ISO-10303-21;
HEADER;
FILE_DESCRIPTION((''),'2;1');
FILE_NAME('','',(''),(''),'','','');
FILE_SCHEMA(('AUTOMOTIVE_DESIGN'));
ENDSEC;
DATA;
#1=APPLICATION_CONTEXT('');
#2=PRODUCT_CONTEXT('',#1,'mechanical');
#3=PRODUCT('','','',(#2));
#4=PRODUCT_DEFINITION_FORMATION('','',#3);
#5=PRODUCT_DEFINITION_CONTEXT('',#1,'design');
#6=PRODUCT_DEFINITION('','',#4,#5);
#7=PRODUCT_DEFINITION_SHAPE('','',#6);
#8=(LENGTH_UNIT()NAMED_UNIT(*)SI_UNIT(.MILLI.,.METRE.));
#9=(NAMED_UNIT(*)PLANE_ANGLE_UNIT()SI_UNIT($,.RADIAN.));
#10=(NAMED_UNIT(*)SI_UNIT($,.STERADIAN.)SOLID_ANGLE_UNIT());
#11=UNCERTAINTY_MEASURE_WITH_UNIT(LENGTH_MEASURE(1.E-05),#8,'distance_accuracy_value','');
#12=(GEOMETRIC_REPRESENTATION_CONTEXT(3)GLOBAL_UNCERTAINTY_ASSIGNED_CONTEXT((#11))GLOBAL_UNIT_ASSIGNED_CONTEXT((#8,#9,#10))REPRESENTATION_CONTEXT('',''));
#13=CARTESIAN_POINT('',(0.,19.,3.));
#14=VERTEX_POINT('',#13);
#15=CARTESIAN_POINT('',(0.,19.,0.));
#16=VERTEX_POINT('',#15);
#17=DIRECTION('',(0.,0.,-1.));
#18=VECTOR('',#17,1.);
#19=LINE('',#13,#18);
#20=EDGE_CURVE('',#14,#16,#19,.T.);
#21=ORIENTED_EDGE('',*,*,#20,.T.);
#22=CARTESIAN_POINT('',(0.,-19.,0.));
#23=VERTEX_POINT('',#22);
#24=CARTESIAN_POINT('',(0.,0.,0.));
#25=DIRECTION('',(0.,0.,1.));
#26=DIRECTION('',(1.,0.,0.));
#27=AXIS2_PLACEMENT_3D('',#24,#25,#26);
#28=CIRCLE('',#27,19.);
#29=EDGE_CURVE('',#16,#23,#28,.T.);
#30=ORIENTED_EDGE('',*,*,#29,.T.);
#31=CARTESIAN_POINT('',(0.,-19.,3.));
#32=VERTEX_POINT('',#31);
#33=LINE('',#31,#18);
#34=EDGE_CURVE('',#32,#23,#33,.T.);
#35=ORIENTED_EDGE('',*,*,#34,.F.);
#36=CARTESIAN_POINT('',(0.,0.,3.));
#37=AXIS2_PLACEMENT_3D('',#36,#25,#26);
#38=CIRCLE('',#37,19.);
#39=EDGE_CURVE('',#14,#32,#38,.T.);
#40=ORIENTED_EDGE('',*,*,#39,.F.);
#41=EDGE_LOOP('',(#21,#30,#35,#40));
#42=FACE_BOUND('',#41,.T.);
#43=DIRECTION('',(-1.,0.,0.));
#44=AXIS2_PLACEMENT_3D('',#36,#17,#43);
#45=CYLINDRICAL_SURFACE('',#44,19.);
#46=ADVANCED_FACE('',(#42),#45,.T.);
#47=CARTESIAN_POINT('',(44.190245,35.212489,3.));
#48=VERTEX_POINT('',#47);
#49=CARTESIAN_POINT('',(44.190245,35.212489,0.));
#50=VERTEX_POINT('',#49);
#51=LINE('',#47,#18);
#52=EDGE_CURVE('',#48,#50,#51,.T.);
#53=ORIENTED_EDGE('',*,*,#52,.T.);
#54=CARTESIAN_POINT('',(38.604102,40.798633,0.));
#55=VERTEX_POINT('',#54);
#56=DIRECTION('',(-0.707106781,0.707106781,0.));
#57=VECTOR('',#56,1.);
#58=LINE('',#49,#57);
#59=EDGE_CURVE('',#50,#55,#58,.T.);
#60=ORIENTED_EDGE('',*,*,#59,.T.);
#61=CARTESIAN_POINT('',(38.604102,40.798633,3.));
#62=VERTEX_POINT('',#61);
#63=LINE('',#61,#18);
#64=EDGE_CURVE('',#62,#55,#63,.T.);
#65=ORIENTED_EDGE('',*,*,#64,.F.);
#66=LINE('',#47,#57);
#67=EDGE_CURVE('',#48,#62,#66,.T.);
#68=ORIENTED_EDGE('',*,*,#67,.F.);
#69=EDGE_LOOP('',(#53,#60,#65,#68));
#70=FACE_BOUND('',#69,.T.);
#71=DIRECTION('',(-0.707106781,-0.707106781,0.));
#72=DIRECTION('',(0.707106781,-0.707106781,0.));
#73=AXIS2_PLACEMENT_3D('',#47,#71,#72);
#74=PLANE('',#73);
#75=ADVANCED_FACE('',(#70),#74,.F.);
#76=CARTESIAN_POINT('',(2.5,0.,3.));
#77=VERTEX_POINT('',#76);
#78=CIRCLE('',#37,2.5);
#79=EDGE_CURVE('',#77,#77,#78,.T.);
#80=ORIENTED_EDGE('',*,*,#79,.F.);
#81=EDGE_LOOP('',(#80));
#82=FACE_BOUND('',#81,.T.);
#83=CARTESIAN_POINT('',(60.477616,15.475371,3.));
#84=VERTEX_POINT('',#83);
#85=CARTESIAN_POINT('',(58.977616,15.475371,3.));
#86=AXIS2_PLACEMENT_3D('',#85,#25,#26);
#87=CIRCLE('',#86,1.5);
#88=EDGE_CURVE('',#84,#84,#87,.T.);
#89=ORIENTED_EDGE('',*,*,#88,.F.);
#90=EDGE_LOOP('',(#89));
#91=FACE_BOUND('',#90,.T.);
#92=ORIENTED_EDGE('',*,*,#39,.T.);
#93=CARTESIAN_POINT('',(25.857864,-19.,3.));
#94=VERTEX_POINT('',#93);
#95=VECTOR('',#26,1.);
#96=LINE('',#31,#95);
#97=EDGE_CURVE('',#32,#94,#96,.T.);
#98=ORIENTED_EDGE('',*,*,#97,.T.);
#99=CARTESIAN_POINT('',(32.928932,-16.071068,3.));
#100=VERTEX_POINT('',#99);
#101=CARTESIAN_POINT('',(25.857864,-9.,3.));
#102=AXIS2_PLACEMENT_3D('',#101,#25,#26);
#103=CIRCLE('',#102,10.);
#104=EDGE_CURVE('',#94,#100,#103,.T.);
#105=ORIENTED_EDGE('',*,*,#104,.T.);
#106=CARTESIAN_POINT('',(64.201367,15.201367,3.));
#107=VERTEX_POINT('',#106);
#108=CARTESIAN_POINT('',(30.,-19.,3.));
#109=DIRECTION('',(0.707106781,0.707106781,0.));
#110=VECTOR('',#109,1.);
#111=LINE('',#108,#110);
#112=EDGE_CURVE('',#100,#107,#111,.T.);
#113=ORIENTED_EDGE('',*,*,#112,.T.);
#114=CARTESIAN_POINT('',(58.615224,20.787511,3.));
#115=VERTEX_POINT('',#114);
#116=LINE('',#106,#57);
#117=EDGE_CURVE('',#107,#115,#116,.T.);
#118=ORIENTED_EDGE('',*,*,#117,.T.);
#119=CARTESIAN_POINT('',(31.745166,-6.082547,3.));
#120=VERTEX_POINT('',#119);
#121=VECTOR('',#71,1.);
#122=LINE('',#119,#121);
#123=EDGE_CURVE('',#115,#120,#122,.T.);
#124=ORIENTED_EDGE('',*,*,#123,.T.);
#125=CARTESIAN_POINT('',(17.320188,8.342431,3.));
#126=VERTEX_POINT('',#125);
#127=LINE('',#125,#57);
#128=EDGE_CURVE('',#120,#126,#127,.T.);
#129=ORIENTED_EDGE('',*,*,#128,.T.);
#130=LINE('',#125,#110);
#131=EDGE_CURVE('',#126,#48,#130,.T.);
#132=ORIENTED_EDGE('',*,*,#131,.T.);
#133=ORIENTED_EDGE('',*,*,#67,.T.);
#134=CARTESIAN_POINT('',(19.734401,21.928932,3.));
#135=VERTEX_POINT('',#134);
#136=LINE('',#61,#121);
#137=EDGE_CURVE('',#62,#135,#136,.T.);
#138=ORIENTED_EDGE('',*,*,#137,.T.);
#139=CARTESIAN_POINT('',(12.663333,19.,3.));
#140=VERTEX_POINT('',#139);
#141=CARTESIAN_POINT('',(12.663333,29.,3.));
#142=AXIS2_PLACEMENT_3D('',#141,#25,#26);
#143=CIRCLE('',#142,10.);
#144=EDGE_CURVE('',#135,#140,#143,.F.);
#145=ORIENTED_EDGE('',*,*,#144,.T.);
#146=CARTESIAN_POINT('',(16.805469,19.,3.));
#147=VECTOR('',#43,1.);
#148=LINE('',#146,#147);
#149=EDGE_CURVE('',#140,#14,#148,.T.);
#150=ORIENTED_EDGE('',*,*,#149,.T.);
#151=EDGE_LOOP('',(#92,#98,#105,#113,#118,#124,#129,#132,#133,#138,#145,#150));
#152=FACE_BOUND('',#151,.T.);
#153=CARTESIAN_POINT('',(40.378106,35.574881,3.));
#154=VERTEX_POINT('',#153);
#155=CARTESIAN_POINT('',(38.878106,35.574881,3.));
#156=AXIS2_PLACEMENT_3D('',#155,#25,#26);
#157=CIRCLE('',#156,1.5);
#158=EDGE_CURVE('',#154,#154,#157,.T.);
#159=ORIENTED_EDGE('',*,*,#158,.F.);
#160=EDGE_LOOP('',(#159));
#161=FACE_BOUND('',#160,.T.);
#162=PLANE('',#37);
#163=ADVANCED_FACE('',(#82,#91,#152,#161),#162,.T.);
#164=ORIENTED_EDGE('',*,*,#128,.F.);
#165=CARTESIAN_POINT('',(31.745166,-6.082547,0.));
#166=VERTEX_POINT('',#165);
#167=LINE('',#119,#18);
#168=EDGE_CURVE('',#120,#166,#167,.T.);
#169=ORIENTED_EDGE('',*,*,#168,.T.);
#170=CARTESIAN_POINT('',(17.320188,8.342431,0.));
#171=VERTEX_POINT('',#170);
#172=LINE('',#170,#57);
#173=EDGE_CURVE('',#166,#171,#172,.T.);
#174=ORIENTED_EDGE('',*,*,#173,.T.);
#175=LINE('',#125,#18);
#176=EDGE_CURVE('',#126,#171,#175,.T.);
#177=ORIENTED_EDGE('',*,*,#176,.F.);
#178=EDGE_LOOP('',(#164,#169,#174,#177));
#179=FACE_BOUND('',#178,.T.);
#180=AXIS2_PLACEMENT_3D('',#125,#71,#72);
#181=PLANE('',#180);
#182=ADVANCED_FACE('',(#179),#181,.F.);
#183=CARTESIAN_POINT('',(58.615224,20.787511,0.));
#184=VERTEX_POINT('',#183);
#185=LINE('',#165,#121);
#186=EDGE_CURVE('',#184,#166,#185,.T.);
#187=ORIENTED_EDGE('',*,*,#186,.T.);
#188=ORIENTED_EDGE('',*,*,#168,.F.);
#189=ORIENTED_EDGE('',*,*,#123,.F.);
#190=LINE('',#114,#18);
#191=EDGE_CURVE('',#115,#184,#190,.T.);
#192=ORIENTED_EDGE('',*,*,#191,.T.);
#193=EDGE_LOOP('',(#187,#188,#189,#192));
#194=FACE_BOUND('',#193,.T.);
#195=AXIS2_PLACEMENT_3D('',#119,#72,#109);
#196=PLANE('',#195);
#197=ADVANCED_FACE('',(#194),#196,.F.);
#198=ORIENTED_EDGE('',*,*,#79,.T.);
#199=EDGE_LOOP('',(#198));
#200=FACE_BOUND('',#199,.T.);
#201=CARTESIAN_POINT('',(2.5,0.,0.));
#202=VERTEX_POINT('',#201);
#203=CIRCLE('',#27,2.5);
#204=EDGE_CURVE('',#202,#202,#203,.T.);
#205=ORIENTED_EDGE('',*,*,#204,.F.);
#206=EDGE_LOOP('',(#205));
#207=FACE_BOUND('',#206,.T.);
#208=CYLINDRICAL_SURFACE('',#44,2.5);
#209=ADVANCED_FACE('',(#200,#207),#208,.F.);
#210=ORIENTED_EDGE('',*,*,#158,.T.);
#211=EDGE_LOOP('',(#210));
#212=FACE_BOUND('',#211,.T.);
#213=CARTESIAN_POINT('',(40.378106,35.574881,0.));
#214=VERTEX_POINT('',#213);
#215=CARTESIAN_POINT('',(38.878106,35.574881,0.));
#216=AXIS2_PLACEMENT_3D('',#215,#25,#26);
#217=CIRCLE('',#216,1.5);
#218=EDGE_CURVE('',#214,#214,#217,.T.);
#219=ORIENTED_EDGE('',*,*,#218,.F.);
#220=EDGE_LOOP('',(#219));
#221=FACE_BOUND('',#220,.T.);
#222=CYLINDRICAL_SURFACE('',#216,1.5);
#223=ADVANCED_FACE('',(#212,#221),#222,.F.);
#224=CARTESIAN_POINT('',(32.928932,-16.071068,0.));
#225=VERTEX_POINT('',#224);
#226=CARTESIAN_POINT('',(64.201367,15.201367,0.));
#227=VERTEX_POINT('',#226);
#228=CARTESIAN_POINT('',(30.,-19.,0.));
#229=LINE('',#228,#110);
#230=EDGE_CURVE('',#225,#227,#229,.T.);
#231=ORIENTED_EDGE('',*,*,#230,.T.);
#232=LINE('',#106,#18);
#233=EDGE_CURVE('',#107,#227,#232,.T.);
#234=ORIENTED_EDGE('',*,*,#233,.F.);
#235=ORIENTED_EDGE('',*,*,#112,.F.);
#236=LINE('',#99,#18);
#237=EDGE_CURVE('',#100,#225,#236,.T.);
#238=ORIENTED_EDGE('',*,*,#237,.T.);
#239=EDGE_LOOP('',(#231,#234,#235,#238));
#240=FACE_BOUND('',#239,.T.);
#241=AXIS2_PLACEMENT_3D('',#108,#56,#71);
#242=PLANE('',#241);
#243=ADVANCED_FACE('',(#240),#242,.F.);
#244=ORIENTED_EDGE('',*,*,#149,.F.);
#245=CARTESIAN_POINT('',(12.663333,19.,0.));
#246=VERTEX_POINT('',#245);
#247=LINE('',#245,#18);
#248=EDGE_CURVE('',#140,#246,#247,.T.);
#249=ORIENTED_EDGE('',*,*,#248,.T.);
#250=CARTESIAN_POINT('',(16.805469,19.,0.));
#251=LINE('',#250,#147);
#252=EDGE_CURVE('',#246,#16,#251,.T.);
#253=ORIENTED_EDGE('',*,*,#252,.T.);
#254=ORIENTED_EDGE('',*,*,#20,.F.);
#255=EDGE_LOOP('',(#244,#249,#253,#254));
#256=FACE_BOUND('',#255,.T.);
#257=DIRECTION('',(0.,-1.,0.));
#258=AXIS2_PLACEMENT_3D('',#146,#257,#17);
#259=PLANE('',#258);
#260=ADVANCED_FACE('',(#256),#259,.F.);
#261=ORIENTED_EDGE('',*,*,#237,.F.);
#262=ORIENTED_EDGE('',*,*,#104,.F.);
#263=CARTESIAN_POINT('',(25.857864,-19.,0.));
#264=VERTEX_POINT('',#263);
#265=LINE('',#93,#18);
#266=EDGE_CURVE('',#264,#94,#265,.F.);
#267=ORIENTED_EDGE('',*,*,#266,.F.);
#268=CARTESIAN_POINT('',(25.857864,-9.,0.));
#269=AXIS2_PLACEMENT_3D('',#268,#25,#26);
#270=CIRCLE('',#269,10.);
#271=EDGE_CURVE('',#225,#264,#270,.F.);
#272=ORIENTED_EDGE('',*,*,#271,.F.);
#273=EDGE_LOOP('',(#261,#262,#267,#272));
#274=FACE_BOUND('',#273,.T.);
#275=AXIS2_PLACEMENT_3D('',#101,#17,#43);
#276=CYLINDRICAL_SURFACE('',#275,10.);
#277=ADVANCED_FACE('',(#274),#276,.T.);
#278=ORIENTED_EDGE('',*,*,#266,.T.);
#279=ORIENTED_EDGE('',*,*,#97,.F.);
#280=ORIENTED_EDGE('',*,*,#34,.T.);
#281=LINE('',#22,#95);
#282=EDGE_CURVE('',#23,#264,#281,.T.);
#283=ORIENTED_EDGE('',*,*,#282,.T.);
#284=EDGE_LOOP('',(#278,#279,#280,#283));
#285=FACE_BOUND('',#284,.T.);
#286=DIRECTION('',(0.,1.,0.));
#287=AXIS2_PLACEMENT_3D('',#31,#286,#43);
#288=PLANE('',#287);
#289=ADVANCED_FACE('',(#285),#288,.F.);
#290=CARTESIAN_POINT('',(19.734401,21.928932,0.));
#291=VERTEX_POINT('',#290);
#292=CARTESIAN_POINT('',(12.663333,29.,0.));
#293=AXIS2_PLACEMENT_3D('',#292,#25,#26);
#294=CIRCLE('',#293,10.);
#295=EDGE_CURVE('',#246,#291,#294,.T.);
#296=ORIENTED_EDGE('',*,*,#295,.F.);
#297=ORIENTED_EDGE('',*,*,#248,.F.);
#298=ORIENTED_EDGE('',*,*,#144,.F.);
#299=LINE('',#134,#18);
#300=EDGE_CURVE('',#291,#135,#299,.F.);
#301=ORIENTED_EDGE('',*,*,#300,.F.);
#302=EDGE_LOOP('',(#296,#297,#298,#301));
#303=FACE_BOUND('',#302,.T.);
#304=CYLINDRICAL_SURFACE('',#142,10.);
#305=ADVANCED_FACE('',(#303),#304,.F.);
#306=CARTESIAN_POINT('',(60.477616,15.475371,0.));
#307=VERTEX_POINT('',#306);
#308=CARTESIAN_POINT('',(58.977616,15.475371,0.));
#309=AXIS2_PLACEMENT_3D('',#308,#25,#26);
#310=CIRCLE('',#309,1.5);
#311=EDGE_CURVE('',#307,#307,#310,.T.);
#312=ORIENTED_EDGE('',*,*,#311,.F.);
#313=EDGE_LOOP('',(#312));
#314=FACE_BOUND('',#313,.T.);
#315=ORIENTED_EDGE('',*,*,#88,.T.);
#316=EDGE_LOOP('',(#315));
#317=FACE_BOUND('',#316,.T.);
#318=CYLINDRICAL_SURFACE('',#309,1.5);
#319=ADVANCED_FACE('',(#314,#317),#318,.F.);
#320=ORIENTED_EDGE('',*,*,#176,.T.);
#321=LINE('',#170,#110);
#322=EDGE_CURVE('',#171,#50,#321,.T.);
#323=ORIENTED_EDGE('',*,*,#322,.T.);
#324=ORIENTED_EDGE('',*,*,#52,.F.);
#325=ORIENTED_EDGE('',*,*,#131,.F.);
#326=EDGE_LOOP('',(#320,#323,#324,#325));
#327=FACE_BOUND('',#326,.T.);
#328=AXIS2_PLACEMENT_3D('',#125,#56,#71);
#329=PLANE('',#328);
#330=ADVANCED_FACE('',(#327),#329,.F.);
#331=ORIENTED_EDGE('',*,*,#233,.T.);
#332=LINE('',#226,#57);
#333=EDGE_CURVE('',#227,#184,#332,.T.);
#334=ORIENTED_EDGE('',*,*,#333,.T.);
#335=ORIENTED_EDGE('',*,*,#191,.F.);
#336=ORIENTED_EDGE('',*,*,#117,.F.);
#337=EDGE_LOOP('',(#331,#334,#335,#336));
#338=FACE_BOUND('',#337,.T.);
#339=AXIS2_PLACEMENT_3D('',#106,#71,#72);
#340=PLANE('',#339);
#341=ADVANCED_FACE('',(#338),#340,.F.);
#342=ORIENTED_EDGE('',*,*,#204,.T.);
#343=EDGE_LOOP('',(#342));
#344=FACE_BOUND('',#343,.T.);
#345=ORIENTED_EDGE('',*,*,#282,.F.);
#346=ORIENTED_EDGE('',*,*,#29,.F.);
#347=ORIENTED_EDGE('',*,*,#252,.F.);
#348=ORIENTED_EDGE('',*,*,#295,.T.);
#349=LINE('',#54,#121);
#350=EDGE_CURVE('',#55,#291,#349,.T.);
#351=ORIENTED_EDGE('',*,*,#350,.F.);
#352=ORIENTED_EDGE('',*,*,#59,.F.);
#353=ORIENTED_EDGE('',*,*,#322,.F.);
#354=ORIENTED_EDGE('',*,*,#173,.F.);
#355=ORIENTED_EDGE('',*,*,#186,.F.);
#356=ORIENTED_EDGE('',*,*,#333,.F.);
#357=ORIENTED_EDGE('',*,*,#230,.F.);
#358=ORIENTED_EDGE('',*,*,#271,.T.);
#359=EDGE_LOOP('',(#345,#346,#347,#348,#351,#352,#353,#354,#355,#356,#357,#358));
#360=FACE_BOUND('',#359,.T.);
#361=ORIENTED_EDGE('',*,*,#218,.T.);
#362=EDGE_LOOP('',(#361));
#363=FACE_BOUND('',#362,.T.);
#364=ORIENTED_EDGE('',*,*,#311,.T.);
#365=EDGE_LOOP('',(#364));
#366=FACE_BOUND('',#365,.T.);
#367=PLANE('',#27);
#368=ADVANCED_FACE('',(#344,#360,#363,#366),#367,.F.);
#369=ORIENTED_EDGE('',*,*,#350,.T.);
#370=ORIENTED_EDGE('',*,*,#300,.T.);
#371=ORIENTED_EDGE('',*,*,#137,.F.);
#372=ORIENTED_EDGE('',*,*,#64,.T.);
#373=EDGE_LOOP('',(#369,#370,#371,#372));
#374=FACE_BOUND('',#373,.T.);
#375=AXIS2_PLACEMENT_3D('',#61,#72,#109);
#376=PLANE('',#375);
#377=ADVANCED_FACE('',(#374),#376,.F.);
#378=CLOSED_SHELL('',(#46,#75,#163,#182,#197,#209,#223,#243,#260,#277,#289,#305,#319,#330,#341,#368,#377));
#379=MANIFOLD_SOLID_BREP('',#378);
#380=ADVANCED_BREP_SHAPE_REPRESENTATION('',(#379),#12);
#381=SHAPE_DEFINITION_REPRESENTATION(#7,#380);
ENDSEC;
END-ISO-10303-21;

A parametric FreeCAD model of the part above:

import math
import FreeCAD as App
import Part
import Sketcher
from FreeCAD import Vector
Q = App.Units.Quantity


def edges_at(feature, points):
    """Names of the edges that pass closest to the given points."""
    edges = feature.Shape.Edges
    near = lambda p: min(range(len(edges)), key=lambda i: edges[i].distToShape(Part.Vertex(*p))[0])
    return sorted({f"Edge{near(p) + 1}" for p in points})

doc = App.newDocument("Part")
params = doc.addObject("Spreadsheet::Sheet", "Params")
for row, (alias, value) in enumerate([
    ("sketch1_diameter", "5 mm"),
    ("sketch1_radius", "19 mm"),
    ("sketch1_width", "30 mm"),
    ("sketch1_length", "38 mm"),
    ("sketch1_length2", "7.9 mm"),
    ("pad1_length", "3 mm"),
    ("sketch2_diameter", "3 mm"),
    ("fillet_radius", "10 mm"),
], start=1):
    params.set(f"A{row}", alias)
    params.set(f"B{row}", "=" + value)
    params.setAlias(f"B{row}", alias)

body = doc.addObject("PartDesign::Body", "Body")

# Sketch on XY plane
sketch1 = doc.addObject("Sketcher::SketchObject", "Sketch")
body.addObject(sketch1)
sketch1.AttachmentSupport = (doc.XY_Plane, [""])
sketch1.MapMode = "FlatFace"
sketch1.addGeometry([
    Part.LineSegment(Vector(0, -19, 0), Vector(30, -19, 0)),  # 0
    Part.LineSegment(Vector(30, -19, 0), Vector(64.201367, 15.201367, 0)),  # 1
    Part.LineSegment(Vector(64.201367, 15.201367, 0), Vector(58.615224, 20.787511, 0)),  # 2
    Part.LineSegment(Vector(58.615224, 20.787511, 0), Vector(31.745166, -6.082547, 0)),  # 3
    Part.LineSegment(Vector(31.745166, -6.082547, 0), Vector(17.320188, 8.342431, 0)),  # 4
    Part.LineSegment(Vector(17.320188, 8.342431, 0), Vector(44.190245, 35.212489, 0)),  # 5
    Part.LineSegment(Vector(44.190245, 35.212489, 0), Vector(38.604102, 40.798633, 0)),  # 6
    Part.LineSegment(Vector(38.604102, 40.798633, 0), Vector(16.805469, 19, 0)),  # 7
    Part.LineSegment(Vector(16.805469, 19, 0), Vector(0, 19, 0)),  # 8
    Part.ArcOfCircle(Part.Circle(Vector(0, 0, 0), Vector(0, 0, 1), 19), math.radians(90), math.radians(270)),  # 9
    Part.Circle(Vector(0, 0, 0), Vector(0, 0, 1), 2.5),  # 10
], False)
sketch1.addConstraint([
    Sketcher.Constraint("Coincident", 0, 2, 1, 1),
    Sketcher.Constraint("Coincident", 1, 2, 2, 1),
    Sketcher.Constraint("Coincident", 2, 2, 3, 1),
    Sketcher.Constraint("Coincident", 3, 2, 4, 1),
    Sketcher.Constraint("Coincident", 4, 2, 5, 1),
    Sketcher.Constraint("Coincident", 5, 2, 6, 1),
    Sketcher.Constraint("Coincident", 6, 2, 7, 1),
    Sketcher.Constraint("Coincident", 7, 2, 8, 1),
    Sketcher.Constraint("Tangent", 8, 2, 9, 1),
    Sketcher.Constraint("Tangent", 9, 2, 0, 1),
    Sketcher.Constraint("Horizontal", 0),
    Sketcher.Constraint("Horizontal", 8),
    Sketcher.Constraint("Coincident", 9, 3, -1, 1),
    Sketcher.Constraint("Coincident", 10, 3, -1, 1),
    Sketcher.Constraint("Perpendicular", 1, 2),
    Sketcher.Constraint("Perpendicular", 2, 3),
    Sketcher.Constraint("Perpendicular", 3, 4),
    Sketcher.Constraint("Perpendicular", 4, 5),
    Sketcher.Constraint("Perpendicular", 5, 6),
    Sketcher.Constraint("Perpendicular", 6, 7),
    Sketcher.Constraint("Equal", 3, 5),
    Sketcher.Constraint("Equal", 2, 6),
    Sketcher.Constraint("Diameter", 10, 5.0),
    Sketcher.Constraint("Radius", 9, 19.0),
    Sketcher.Constraint("DistanceX", 0, 1, 0, 2, 30.0),
    Sketcher.Constraint("Angle", 1, Q("45 deg")),
    Sketcher.Constraint("Distance", 3, 38.0),
    Sketcher.Constraint("Distance", 2, 7.9),
    Sketcher.Constraint("Distance", 4, 20.4),
    Sketcher.Constraint("DistanceX", -1, 1, 6, 2, 38.604102),
])
sketch1.setExpression("Constraints[22]", "Params.sketch1_diameter")
sketch1.setExpression("Constraints[23]", "Params.sketch1_radius")
sketch1.setExpression("Constraints[24]", "Params.sketch1_width")
sketch1.setExpression("Constraints[26]", "Params.sketch1_length")
sketch1.setExpression("Constraints[27]", "Params.sketch1_length2")
pad1 = doc.addObject("PartDesign::Pad", "Pad")
body.addObject(pad1)
pad1.Profile = sketch1
pad1.setExpression("Length", "Params.pad1_length")

# Sketch on XY plane
sketch2 = doc.addObject("Sketcher::SketchObject", "Sketch001")
body.addObject(sketch2)
sketch2.AttachmentSupport = (doc.XY_Plane, [""])
sketch2.MapMode = "FlatFace"
sketch2.AttachmentOffset = App.Placement(Vector(0, 0, 3), App.Rotation())
sketch2.addGeometry([
    Part.Circle(Vector(38.878106, 35.574881, 0), Vector(0, 0, 1), 1.5),
    Part.Circle(Vector(58.977616, 15.475371, 0), Vector(0, 0, 1), 1.5),
], False)
sketch2.addConstraint([
    Sketcher.Constraint("Equal", 0, 1),
    Sketcher.Constraint("Diameter", 0, 3.0),
    Sketcher.Constraint("DistanceY", -1, 1, 0, 3, 35.574881),
    Sketcher.Constraint("DistanceY", -1, 1, 1, 3, 15.475371),
    Sketcher.Constraint("DistanceX", 0, 3, 1, 3, 20.09951),
    Sketcher.Constraint("DistanceX", -1, 1, 0, 3, 38.878106),
])
sketch2.setExpression("Constraints[1]", "Params.sketch2_diameter")
pocket1 = doc.addObject("PartDesign::Pocket", "Pocket")
body.addObject(pocket1)
pocket1.Profile = sketch2
pocket1.Type = "ThroughAll"
doc.recompute()

fillet = doc.addObject("PartDesign::Fillet", "Fillet")
body.addObject(fillet)
fillet.Base = (pocket1, edges_at(pocket1, [(30, -19, 1.5), (16.805, 19, 1.5)]))
fillet.setExpression("Radius", "Params.fillet_radius")

doc.recompute()
